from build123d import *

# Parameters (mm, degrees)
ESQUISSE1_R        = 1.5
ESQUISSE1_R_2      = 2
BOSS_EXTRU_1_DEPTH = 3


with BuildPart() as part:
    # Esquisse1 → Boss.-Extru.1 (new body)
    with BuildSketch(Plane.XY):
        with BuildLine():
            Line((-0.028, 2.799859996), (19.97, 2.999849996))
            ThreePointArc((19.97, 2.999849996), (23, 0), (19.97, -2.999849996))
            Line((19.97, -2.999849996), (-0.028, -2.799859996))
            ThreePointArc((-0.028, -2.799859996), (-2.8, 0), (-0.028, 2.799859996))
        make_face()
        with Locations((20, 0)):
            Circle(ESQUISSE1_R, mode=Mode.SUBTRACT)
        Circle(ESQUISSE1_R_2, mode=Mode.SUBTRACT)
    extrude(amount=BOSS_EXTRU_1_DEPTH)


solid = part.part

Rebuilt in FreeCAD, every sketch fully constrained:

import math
import FreeCAD as App
import Part
import Sketcher
from FreeCAD import Vector
Q = App.Units.Quantity

doc = App.newDocument("Part")
body = doc.addObject("PartDesign::Body", "Body")

# Sketch on XY plane
sketch1 = body.newObject("Sketcher::SketchObject", "Sketch")
sketch1.AttachmentSupport = (doc.getObject("XY_Plane"), [""])
sketch1.MapMode = "FlatFace"
sketch1.addGeometry(Part.LineSegment(Vector(19.97, 2.99985, 0), Vector(-0.028, 2.79986, 0)), False)
sketch1.addGeometry(Part.ArcOfCircle(Part.Circle(Vector(0, 0, 0), Vector(0, 0, 1), 2.8), math.radians(90.572967), math.radians(269.427033)), False)
sketch1.addGeometry(Part.LineSegment(Vector(-0.028, -2.79986, 0), Vector(19.97, -2.99985, 0)), False)
sketch1.addGeometry(Part.ArcOfCircle(Part.Circle(Vector(20, 0, 0), Vector(0, 0, 1), 3), math.radians(-90.572967), math.radians(90.572967)), False)
sketch1.addGeometry(Part.Circle(Vector(20, 0, 0), Vector(0, 0, 1), 1.5), False)
sketch1.addGeometry(Part.Circle(Vector(0, 0, 0), Vector(0, 0, 1), 2), False)
sketch1.addConstraint(Sketcher.Constraint("Tangent", 0, 2, 1, 1))
sketch1.addConstraint(Sketcher.Constraint("Tangent", 1, 2, 2, 1))
sketch1.addConstraint(Sketcher.Constraint("Tangent", 2, 2, 3, 1))
sketch1.addConstraint(Sketcher.Constraint("Tangent", 3, 2, 0, 1))
sketch1.addConstraint(Sketcher.Constraint("Coincident", 1, 3, -1, 1))
sketch1.addConstraint(Sketcher.Constraint("Coincident", 5, 3, -1, 1))
sketch1.addConstraint(Sketcher.Constraint("Coincident", 4, 3, 3, 3))
sketch1.addConstraint(Sketcher.Constraint("PointOnObject", 3, 3, -1))
sketch1.addConstraint(Sketcher.Constraint("Diameter", 4, Q("3 mm")))
sketch1.addConstraint(Sketcher.Constraint("Diameter", 5, Q("4 mm")))
sketch1.addConstraint(Sketcher.Constraint("Radius", 3, Q("3 mm")))
sketch1.addConstraint(Sketcher.Constraint("Radius", 1, Q("2.8 mm")))
sketch1.addConstraint(Sketcher.Constraint("DistanceX", -1, 1, 3, 3, Q("20 mm")))
pad1 = body.newObject("PartDesign::Pad", "Pad")
pad1.Profile = sketch1
pad1.Length = 3

doc.recompute()
